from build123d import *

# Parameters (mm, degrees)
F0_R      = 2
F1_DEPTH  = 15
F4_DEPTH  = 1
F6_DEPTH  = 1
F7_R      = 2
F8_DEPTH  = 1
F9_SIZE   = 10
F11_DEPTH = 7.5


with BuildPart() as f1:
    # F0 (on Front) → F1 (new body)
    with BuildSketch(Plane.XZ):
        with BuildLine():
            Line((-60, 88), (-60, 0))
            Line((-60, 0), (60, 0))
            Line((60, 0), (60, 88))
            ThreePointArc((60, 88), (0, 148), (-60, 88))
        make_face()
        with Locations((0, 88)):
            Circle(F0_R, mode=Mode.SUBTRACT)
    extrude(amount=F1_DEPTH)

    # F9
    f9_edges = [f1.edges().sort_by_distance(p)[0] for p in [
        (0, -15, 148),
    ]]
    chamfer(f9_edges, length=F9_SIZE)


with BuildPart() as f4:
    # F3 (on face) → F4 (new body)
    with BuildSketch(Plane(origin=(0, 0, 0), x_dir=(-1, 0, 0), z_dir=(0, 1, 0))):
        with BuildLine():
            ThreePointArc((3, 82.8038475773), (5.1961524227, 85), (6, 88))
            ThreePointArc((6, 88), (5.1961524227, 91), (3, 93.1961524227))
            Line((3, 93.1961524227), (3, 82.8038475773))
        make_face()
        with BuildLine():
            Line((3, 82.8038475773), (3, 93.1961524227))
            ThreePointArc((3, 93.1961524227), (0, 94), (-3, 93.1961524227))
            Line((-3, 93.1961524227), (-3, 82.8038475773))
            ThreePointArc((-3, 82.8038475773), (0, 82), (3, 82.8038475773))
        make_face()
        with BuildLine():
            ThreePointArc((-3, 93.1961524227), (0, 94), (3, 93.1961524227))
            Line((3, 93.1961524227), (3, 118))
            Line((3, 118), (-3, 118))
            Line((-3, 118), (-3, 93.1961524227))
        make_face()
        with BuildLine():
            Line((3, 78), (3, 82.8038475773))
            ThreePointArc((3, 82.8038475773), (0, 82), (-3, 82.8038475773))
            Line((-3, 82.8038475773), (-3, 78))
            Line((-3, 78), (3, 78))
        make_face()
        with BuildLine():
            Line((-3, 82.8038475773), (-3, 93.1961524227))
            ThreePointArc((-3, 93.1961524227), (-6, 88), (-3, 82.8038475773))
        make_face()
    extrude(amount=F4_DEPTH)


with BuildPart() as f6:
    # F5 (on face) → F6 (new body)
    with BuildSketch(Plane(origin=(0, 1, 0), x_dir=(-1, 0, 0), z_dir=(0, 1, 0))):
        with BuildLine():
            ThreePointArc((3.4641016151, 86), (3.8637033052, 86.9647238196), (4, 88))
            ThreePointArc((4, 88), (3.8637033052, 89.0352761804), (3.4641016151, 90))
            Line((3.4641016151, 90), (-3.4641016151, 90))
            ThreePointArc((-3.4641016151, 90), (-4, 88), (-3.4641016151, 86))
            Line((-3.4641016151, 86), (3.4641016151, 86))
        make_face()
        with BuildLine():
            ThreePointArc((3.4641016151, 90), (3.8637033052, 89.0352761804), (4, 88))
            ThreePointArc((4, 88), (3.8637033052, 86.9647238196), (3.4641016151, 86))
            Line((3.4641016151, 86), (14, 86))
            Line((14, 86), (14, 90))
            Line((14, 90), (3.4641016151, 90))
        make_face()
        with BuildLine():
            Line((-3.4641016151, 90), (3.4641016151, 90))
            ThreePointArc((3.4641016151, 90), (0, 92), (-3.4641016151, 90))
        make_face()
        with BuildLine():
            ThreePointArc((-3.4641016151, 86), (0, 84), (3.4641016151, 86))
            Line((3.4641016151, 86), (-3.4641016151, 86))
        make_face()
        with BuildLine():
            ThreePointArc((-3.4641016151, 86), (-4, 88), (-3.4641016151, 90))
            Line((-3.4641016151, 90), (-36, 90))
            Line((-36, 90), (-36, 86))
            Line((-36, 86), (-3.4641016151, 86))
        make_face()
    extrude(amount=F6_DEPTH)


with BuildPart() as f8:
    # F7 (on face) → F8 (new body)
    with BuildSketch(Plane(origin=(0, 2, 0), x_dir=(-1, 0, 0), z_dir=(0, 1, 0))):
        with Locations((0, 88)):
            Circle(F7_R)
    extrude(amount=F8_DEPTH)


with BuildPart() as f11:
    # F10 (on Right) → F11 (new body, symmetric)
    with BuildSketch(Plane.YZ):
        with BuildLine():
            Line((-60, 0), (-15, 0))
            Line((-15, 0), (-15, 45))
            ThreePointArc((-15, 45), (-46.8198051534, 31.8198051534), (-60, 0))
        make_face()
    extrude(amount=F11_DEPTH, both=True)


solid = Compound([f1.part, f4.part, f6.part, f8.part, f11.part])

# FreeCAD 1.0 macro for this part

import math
import FreeCAD as App
import Part
import Sketcher

V = App.Vector


def edges_at(feature, points):
    """Names of the edges that pass closest to the given points."""
    edges = feature.Shape.Edges
    near = lambda p: min(range(len(edges)), key=lambda i: edges[i].distToShape(Part.Vertex(*p))[0])
    return sorted({f"Edge{near(p) + 1}" for p in points})

doc = App.newDocument("Part")
params = doc.addObject("Spreadsheet::Sheet", "Params")
for row, (alias, value) in enumerate([
    ("sketch1_diameter", "4 mm"),
    ("sketch1_radius", "60 mm"),
    ("sketch1_height", "88 mm"),
    ("pad1_length", "15 mm"),
    ("chamfer_size", "10 mm"),
    ("sketch2_radius", "6 mm"),
    ("sketch2_width", "6 mm"),
    ("pad2_length", "1 mm"),
    ("sketch3_radius", "4 mm"),
    ("sketch3_height", "4 mm"),
    ("pad3_length", "1 mm"),
    ("sketch4_diameter", "4 mm"),
    ("pad4_length", "1 mm"),
    ("sketch5_radius", "45 mm"),
    ("pad5_length", "15 mm"),
], start=1):
    params.set(f"A{row}", alias)
    params.set(f"B{row}", "=" + value)
    params.setAlias(f"B{row}", alias)

body = doc.addObject("PartDesign::Body", "Body")

sketch1 = body.newObject("Sketcher::SketchObject", "Sketch")
sketch1.AttachmentSupport = (doc.getObject("XZ_Plane"), [""])
sketch1.MapMode = "FlatFace"
sketch1.addGeometry(Part.LineSegment(V(-60, 88, 0), V(-60, 0, 0)), False)
sketch1.addGeometry(Part.LineSegment(V(-60, 0, 0), V(60, 0, 0)), False)
sketch1.addGeometry(Part.LineSegment(V(60, 0, 0), V(60, 88, 0)), False)
sketch1.addGeometry(Part.ArcOfCircle(Part.Circle(V(0, 88, 0), V(0, 0, 1), 60), math.radians(0), math.radians(180)), False)
sketch1.addGeometry(Part.Circle(V(0, 88, 0), V(0, 0, 1), 2), False)
sketch1.addConstraint(Sketcher.Constraint("Coincident", 0, 2, 1, 1))
sketch1.addConstraint(Sketcher.Constraint("Coincident", 1, 2, 2, 1))
sketch1.addConstraint(Sketcher.Constraint("Tangent", 2, 2, 3, 1))
sketch1.addConstraint(Sketcher.Constraint("Tangent", 3, 2, 0, 1))
sketch1.addConstraint(Sketcher.Constraint("Vertical", 0))
sketch1.addConstraint(Sketcher.Constraint("Horizontal", 1))
sketch1.addConstraint(Sketcher.Constraint("Vertical", 2))
sketch1.addConstraint(Sketcher.Constraint("Coincident", 4, 3, 3, 3))
sketch1.addConstraint(Sketcher.Constraint("Symmetric", 0, 2, 1, 2, -1, 1))
sketch1.addConstraint(Sketcher.Constraint("Diameter", 4, 4.0))
sketch1.addConstraint(Sketcher.Constraint("Radius", 3, 60.0))
sketch1.addConstraint(Sketcher.Constraint("DistanceY", 0, 2, 0, 1, 88.0))
sketch1.setExpression("Constraints[9]", "Params.sketch1_diameter")
sketch1.setExpression("Constraints[10]", "Params.sketch1_radius")
sketch1.setExpression("Constraints[11]", "Params.sketch1_height")
pad1 = body.newObject("PartDesign::Pad", "Pad")
pad1.Profile = sketch1
pad1.setExpression("Length", "Params.pad1_length")
doc.recompute()

chamfer = body.newObject("PartDesign::Chamfer", "Chamfer")
chamfer.Base = (pad1, edges_at(pad1, [(0, -15, 148)]))
chamfer.setExpression("Size", "Params.chamfer_size")
body2 = doc.addObject("PartDesign::Body", "Body001")

sketch2 = body2.newObject("Sketcher::SketchObject", "Sketch001")
sketch2.AttachmentSupport = (doc.getObject("XZ_Plane001"), [""])
sketch2.MapMode = "FlatFace"
sketch2.addGeometry(Part.ArcOfCircle(Part.Circle(V(0, 88, 0), V(0, 0, 1), 6), math.radians(180), math.radians(240)), False)
sketch2.addGeometry(Part.ArcOfCircle(Part.Circle(V(0, 88, 0), V(0, 0, 1), 6), math.radians(120), math.radians(180)), False)
sketch2.addGeometry(Part.LineSegment(V(-3, 93.2, 0), V(-3, 118, 0)), False)
sketch2.addGeometry(Part.LineSegment(V(-3, 118, 0), V(3, 118, 0)), False)
sketch2.addGeometry(Part.LineSegment(V(3, 118, 0), V(3, 93.2, 0)), False)
sketch2.addGeometry(Part.ArcOfCircle(Part.Circle(V(0, 88, 0), V(0, 0, 1), 6), math.radians(-60), math.radians(60)), False)
sketch2.addGeometry(Part.LineSegment(V(3, 82.8, 0), V(3, 78, 0)), False)
sketch2.addGeometry(Part.LineSegment(V(3, 78, 0), V(-3, 78, 0)), False)
sketch2.addGeometry(Part.LineSegment(V(-3, 78, 0), V(-3, 82.8, 0)), False)
sketch2.addConstraint(Sketcher.Constraint("Tangent", 0, 1, 1, 2))
sketch2.addConstraint(Sketcher.Constraint("Coincident", 1, 1, 2, 1))
sketch2.addConstraint(Sketcher.Constraint("Coincident", 2, 2, 3, 1))
sketch2.addConstraint(Sketcher.Constraint("Coincident", 3, 2, 4, 1))
sketch2.addConstraint(Sketcher.Constraint("Coincident", 4, 2, 5, 2))
sketch2.addConstraint(Sketcher.Constraint("Coincident", 5, 1, 6, 1))
sketch2.addConstraint(Sketcher.Constraint("Coincident", 6, 2, 7, 1))
sketch2.addConstraint(Sketcher.Constraint("Coincident", 7, 2, 8, 1))
sketch2.addConstraint(Sketcher.Constraint("Coincident", 8, 2, 0, 2))
sketch2.addConstraint(Sketcher.Constraint("Vertical", 2))
sketch2.addConstraint(Sketcher.Constraint("Horizontal", 3))
sketch2.addConstraint(Sketcher.Constraint("Vertical", 4))
sketch2.addConstraint(Sketcher.Constraint("Vertical", 6))
sketch2.addConstraint(Sketcher.Constraint("Horizontal", 7))
sketch2.addConstraint(Sketcher.Constraint("Vertical", 8))
sketch2.addConstraint(Sketcher.Constraint("Coincident", 5, 3, 0, 3))
sketch2.addConstraint(Sketcher.Constraint("Equal", 0, 1))
sketch2.addConstraint(Sketcher.Constraint("Equal", 1, 5))
sketch2.addConstraint(Sketcher.Constraint("Symmetric", 1, 1, 4, 2, -2))
sketch2.addConstraint(Sketcher.Constraint("Horizontal", 5, 3, 0, 1))
sketch2.addConstraint(Sketcher.Constraint("Horizontal", 5, 1, 8, 2))
sketch2.addConstraint(Sketcher.Constraint("Vertical", 4, 2, 5, 1))
sketch2.addConstraint(Sketcher.Constraint("Radius", 0, 6.0))
sketch2.addConstraint(Sketcher.Constraint("DistanceX", 3, 1, 3, 2, 6.0))
sketch2.addConstraint(Sketcher.Constraint("DistanceY", -1, 1, 0, 3, 88.0))
sketch2.addConstraint(Sketcher.Constraint("DistanceY", -1, 1, 2, 2, 118.0))
sketch2.addConstraint(Sketcher.Constraint("DistanceY", -1, 1, 6, 2, 78.0))
sketch2.setExpression("Constraints[22]", "Params.sketch2_radius")
sketch2.setExpression("Constraints[23]", "Params.sketch2_width")
pad2 = body2.newObject("PartDesign::Pad", "Pad001")
pad2.Profile = sketch2
pad2.setExpression("Length", "Params.pad2_length")
pad2.Reversed = True
body3 = doc.addObject("PartDesign::Body", "Body002")

sketch3 = body3.newObject("Sketcher::SketchObject", "Sketch002")
sketch3.AttachmentSupport = (doc.getObject("XZ_Plane002"), [""])
sketch3.MapMode = "FlatFace"
sketch3.AttachmentOffset = App.Placement(V(0, 0, -1), App.Rotation())
sketch3.addGeometry(Part.ArcOfCircle(Part.Circle(V(0, 88, 0), V(0, 0, 1), 4), math.radians(-150), math.radians(-30)), False)
sketch3.addGeometry(Part.LineSegment(V(-3.5, 86, 0), V(-14, 86, 0)), False)
sketch3.addGeometry(Part.LineSegment(V(-14, 86, 0), V(-14, 90, 0)), False)
sketch3.addGeometry(Part.LineSegment(V(-14, 90, 0), V(-3.5, 90, 0)), False)
sketch3.addGeometry(Part.ArcOfCircle(Part.Circle(V(0, 88, 0), V(0, 0, 1), 4), math.radians(30), math.radians(150)), False)
sketch3.addGeometry(Part.LineSegment(V(3.5, 90, 0), V(36, 90, 0)), False)
sketch3.addGeometry(Part.LineSegment(V(36, 90, 0), V(36, 86, 0)), False)
sketch3.addGeometry(Part.LineSegment(V(36, 86, 0), V(3.5, 86, 0)), False)
sketch3.addConstraint(Sketcher.Constraint("Coincident", 0, 1, 1, 1))
sketch3.addConstraint(Sketcher.Constraint("Coincident", 1, 2, 2, 1))
sketch3.addConstraint(Sketcher.Constraint("Coincident", 2, 2, 3, 1))
sketch3.addConstraint(Sketcher.Constraint("Coincident", 3, 2, 4, 2))
sketch3.addConstraint(Sketcher.Constraint("Coincident", 4, 1, 5, 1))
sketch3.addConstraint(Sketcher.Constraint("Coincident", 5, 2, 6, 1))
sketch3.addConstraint(Sketcher.Constraint("Coincident", 6, 2, 7, 1))
sketch3.addConstraint(Sketcher.Constraint("Coincident", 7, 2, 0, 2))
sketch3.addConstraint(Sketcher.Constraint("Horizontal", 1))
sketch3.addConstraint(Sketcher.Constraint("Vertical", 2))
sketch3.addConstraint(Sketcher.Constraint("Horizontal", 3))
sketch3.addConstraint(Sketcher.Constraint("Horizontal", 5))
sketch3.addConstraint(Sketcher.Constraint("Vertical", 6))
sketch3.addConstraint(Sketcher.Constraint("Horizontal", 7))
sketch3.addConstraint(Sketcher.Constraint("Coincident", 4, 3, 0, 3))
sketch3.addConstraint(Sketcher.Constraint("Equal", 0, 4))
sketch3.addConstraint(Sketcher.Constraint("Symmetric", 3, 2, 4, 1, -2))
sketch3.addConstraint(Sketcher.Constraint("Horizontal", 1, 2, 6, 2))
sketch3.addConstraint(Sketcher.Constraint("Vertical", 0, 1, 3, 2))
sketch3.addConstraint(Sketcher.Constraint("Radius", 0, 4.0))
sketch3.addConstraint(Sketcher.Constraint("DistanceY", 2, 1, 2, 2, 4.0))
sketch3.addConstraint(Sketcher.Constraint("DistanceY", -1, 1, 0, 3, 88.0))
sketch3.addConstraint(Sketcher.Constraint("DistanceX", 1, 2, -1, 1, 14.0))
sketch3.addConstraint(Sketcher.Constraint("DistanceX", -1, 1, 5, 2, 36.0))
sketch3.setExpression("Constraints[19]", "Params.sketch3_radius")
sketch3.setExpression("Constraints[20]", "Params.sketch3_height")
pad3 = body3.newObject("PartDesign::Pad", "Pad002")
pad3.Profile = sketch3
pad3.setExpression("Length", "Params.pad3_length")
pad3.Reversed = True
body4 = doc.addObject("PartDesign::Body", "Body003")

sketch4 = body4.newObject("Sketcher::SketchObject", "Sketch003")
sketch4.AttachmentSupport = (doc.getObject("XZ_Plane003"), [""])
sketch4.MapMode = "FlatFace"
sketch4.AttachmentOffset = App.Placement(V(0, 0, -2), App.Rotation())
sketch4.addGeometry(Part.Circle(V(0, 88, 0), V(0, 0, 1), 2), False)
sketch4.addConstraint(Sketcher.Constraint("PointOnObject", 0, 3, -2))
sketch4.addConstraint(Sketcher.Constraint("Diameter", 0, 4.0))
sketch4.addConstraint(Sketcher.Constraint("DistanceY", -1, 1, 0, 3, 88.0))
sketch4.setExpression("Constraints[1]", "Params.sketch4_diameter")
pad4 = body4.newObject("PartDesign::Pad", "Pad003")
pad4.Profile = sketch4
pad4.setExpression("Length", "Params.pad4_length")
pad4.Reversed = True
body5 = doc.addObject("PartDesign::Body", "Body004")

sketch5 = body5.newObject("Sketcher::SketchObject", "Sketch004")
sketch5.AttachmentSupport = (doc.getObject("YZ_Plane004"), [""])
sketch5.MapMode = "FlatFace"
sketch5.addGeometry(Part.LineSegment(V(-60, 0, 0), V(-15, 0, 0)), False)
sketch5.addGeometry(Part.LineSegment(V(-15, 0, 0), V(-15, 45, 0)), False)
sketch5.addGeometry(Part.ArcOfCircle(Part.Circle(V(-15, 0, 0), V(0, 0, 1), 45), math.radians(90), math.radians(180)), False)
sketch5.addConstraint(Sketcher.Constraint("Coincident", 0, 2, 1, 1))
sketch5.addConstraint(Sketcher.Constraint("Coincident", 1, 2, 2, 1))
sketch5.addConstraint(Sketcher.Constraint("Coincident", 2, 2, 0, 1))
sketch5.addConstraint(Sketcher.Constraint("Horizontal", 0))
sketch5.addConstraint(Sketcher.Constraint("Vertical", 1))
sketch5.addConstraint(Sketcher.Constraint("Coincident", 0, 2, 2, 3))
sketch5.addConstraint(Sketcher.Constraint("PointOnObject", 2, 3, -1))
sketch5.addConstraint(Sketcher.Constraint("Radius", 2, 45.0))
sketch5.addConstraint(Sketcher.Constraint("DistanceX", 2, 3, -1, 1, 15.0))
sketch5.setExpression("Constraints[7]", "Params.sketch5_radius")
pad5 = body5.newObject("PartDesign::Pad", "Pad004")
pad5.Profile = sketch5
pad5.setExpression("Length", "Params.pad5_length")
pad5.Midplane = True

doc.recompute()
